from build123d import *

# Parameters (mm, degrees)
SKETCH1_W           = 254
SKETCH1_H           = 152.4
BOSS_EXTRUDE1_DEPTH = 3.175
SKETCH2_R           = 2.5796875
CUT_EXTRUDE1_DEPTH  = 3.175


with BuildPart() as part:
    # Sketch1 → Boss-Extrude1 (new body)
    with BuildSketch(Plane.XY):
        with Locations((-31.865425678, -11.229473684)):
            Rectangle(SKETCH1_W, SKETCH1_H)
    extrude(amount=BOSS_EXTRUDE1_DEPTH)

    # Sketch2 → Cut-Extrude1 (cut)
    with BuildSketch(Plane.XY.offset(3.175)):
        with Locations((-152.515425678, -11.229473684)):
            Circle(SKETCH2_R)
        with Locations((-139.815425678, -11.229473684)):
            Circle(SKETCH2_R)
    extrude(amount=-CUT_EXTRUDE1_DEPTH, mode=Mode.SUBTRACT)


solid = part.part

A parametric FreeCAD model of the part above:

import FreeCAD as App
import Part
import Sketcher
Q = App.Units.Quantity

doc = App.newDocument("Part")
params = doc.addObject("Spreadsheet::Sheet", "Params")
for row, (alias, value) in enumerate([
    ("sketch1_width", "10 in"),
    ("sketch1_height", "6 in"),
    ("pad1_length", "0.125 in"),
    ("sketch2_diameter", "0.203125 in"),
    ("pocket1_length", "0.125 in"),
], start=1):
    params.set(f"A{row}", alias)
    params.set(f"B{row}", "=" + value)
    params.setAlias(f"B{row}", alias)

body = doc.addObject("PartDesign::Body", "Body")

# Sketch on XY plane
sketch1 = body.newObject("Sketcher::SketchObject", "Sketch")
sketch1.AttachmentSupport = (doc.getObject("XY_Plane"), [""])
sketch1.MapMode = "FlatFace"
sketch1.addGeometry([
    Part.LineSegment(App.Vector(-159, 65, 0), App.Vector(-159, -87, 0)),
    Part.LineSegment(App.Vector(-159, -87, 0), App.Vector(95, -87, 0)),
    Part.LineSegment(App.Vector(95, -87, 0), App.Vector(95, 65, 0)),
    Part.LineSegment(App.Vector(95, 65, 0), App.Vector(-159, 65, 0)),
], False)
sketch1.addConstraint([
    Sketcher.Constraint("Coincident", 0, 2, 1, 1),
    Sketcher.Constraint("Coincident", 1, 2, 2, 1),
    Sketcher.Constraint("Coincident", 2, 2, 3, 1),
    Sketcher.Constraint("Coincident", 3, 2, 0, 1),
    Sketcher.Constraint("Vertical", 0),
    Sketcher.Constraint("Horizontal", 1),
    Sketcher.Constraint("Vertical", 2),
    Sketcher.Constraint("Horizontal", 3),
    Sketcher.Constraint("DistanceX", 1, 1, 1, 2, Q("10 in")),
    Sketcher.Constraint("DistanceY", 0, 2, 0, 1, Q("6 in")),
    Sketcher.Constraint("DistanceX", 0, 2, -1, 1, 158.865426),
    Sketcher.Constraint("DistanceY", 0, 2, -1, 1, 87.429474),
])
sketch1.setExpression("Constraints[8]", "Params.sketch1_width")
sketch1.setExpression("Constraints[9]", "Params.sketch1_height")
pad1 = body.newObject("PartDesign::Pad", "Pad")
pad1.Profile = sketch1
pad1.setExpression("Length", "Params.pad1_length")

# Sketch on XY plane
sketch2 = body.newObject("Sketcher::SketchObject", "Sketch001")
sketch2.AttachmentSupport = (doc.getObject("XY_Plane"), [""])
sketch2.MapMode = "FlatFace"
sketch2.AttachmentOffset = App.Placement(App.Vector(0, 0, 0.125 * 25.4), App.Rotation())
sketch2.addGeometry([
    Part.Circle(App.Vector(-152.5, -11.2, 0), App.Vector(0, 0, 1), 2.6),
    Part.Circle(App.Vector(-139.8, -11.2, 0), App.Vector(0, 0, 1), 2.6),
], False)
sketch2.addConstraint([
    Sketcher.Constraint("Equal", 0, 1),
    Sketcher.Constraint("Horizontal", 0, 3, 1, 3),
    Sketcher.Constraint("Diameter", 0, Q("0.203125 in")),
    Sketcher.Constraint("DistanceX", 0, 3, 1, 3, Q("0.5 in")),
    Sketcher.Constraint("DistanceX", 0, 3, -1, 1, 152.515426),
    Sketcher.Constraint("DistanceY", 0, 3, -1, 1, 11.229474),
])
sketch2.setExpression("Constraints[2]", "Params.sketch2_diameter")
pocket1 = body.newObject("PartDesign::Pocket", "Pocket")
pocket1.Profile = sketch2
pocket1.setExpression("Length", "Params.pocket1_length")

doc.recompute()
